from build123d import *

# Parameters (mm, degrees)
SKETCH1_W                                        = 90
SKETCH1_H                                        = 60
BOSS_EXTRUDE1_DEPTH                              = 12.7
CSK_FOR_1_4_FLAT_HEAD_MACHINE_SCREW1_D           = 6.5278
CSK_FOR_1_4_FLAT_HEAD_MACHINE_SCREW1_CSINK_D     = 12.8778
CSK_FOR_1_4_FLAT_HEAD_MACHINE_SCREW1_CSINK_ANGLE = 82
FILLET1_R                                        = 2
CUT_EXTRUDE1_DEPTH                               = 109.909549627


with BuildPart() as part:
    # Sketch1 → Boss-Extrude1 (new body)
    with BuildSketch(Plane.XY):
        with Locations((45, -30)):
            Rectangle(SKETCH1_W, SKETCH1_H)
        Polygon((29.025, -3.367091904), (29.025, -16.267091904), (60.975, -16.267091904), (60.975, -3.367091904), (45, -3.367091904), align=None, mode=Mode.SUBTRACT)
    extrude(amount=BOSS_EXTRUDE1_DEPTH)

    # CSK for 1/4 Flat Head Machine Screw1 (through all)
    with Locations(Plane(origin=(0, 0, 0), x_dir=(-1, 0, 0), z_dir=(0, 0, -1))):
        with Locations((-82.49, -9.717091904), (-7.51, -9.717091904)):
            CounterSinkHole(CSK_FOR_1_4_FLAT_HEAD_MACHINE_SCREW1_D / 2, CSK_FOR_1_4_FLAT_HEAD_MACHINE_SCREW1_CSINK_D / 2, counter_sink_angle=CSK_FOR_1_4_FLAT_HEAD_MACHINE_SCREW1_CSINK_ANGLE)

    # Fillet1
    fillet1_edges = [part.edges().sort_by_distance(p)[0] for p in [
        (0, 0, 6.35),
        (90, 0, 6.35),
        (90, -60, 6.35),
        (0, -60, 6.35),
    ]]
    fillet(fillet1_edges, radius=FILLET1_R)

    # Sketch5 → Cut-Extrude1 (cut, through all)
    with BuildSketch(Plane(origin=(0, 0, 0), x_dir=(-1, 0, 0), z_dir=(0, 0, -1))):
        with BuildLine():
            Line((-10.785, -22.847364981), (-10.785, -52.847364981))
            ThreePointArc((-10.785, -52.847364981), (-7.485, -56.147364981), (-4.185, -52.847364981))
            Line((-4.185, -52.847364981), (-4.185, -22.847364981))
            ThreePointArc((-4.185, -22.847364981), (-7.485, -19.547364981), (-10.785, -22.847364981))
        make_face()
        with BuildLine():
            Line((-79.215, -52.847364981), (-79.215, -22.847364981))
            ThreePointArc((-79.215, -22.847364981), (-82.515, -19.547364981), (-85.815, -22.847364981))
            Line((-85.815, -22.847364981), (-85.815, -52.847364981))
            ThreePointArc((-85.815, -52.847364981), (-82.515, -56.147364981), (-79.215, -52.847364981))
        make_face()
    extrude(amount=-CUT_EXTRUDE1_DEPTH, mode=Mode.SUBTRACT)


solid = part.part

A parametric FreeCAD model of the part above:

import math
import FreeCAD as App
import Part
import Sketcher

V = App.Vector


def edges_at(feature, points):
    """Names of the edges that pass closest to the given points."""
    edges = feature.Shape.Edges
    near = lambda p: min(range(len(edges)), key=lambda i: edges[i].distToShape(Part.Vertex(*p))[0])
    return sorted({f"Edge{near(p) + 1}" for p in points})


def add_polygon(sketch, points):
    """Adds a closed chain of lines whose ends are joined by coincident constraints."""
    first, n = sketch.GeometryCount, len(points)
    for a, b in zip(points, points[1:] + points[:1]):
        sketch.addGeometry(Part.LineSegment(App.Vector(*a, 0), App.Vector(*b, 0)), False)
    for i in range(n):
        sketch.addConstraint(Sketcher.Constraint("Coincident", first + i, 2, first + (i + 1) % n, 1))

doc = App.newDocument("Part")
body = doc.addObject("PartDesign::Body", "Body")

# Sketch on XY plane
sketch1 = body.newObject("Sketcher::SketchObject", "Sketch")
sketch1.AttachmentSupport = (doc.getObject("XY_Plane"), [""])
sketch1.MapMode = "FlatFace"
add_polygon(sketch1, [(0, 0), (0, -60), (90, -60), (90, 0)])  # lines 0-3
add_polygon(sketch1, [(29, -16), (29, -3), (61, -3), (61, -16)])  # lines 4-7
sketch1.addConstraint(Sketcher.Constraint("Vertical", 0))
sketch1.addConstraint(Sketcher.Constraint("Horizontal", 1))
sketch1.addConstraint(Sketcher.Constraint("Vertical", 2))
sketch1.addConstraint(Sketcher.Constraint("Horizontal", 3))
sketch1.addConstraint(Sketcher.Constraint("Vertical", 4))
sketch1.addConstraint(Sketcher.Constraint("Horizontal", 5))
sketch1.addConstraint(Sketcher.Constraint("Vertical", 6))
sketch1.addConstraint(Sketcher.Constraint("Horizontal", 7))
sketch1.addConstraint(Sketcher.Constraint("Coincident", 3, 2, -1, 1))
sketch1.addConstraint(Sketcher.Constraint("DistanceX", 1, 1, 1, 2, 90.0))
sketch1.addConstraint(Sketcher.Constraint("DistanceY", 0, 2, 0, 1, 60.0))
sketch1.addConstraint(Sketcher.Constraint("DistanceY", 4, 1, 4, 2, 12.9))
sketch1.addConstraint(Sketcher.Constraint("DistanceX", 5, 1, 5, 2, 31.95))
sketch1.addConstraint(Sketcher.Constraint("DistanceX", -1, 1, 4, 2, 29.025))
sketch1.addConstraint(Sketcher.Constraint("DistanceY", 4, 2, -1, 1, 3.367092))
pad1 = body.newObject("PartDesign::Pad", "Pad")
pad1.Profile = sketch1
pad1.Length = 12.7

# Sketch on XY plane
sketch2 = body.newObject("Sketcher::SketchObject", "Sketch001")
sketch2.AttachmentSupport = (doc.getObject("XY_Plane"), [""])
sketch2.MapMode = "FlatFace"
sketch2.addGeometry(Part.Circle(V(82.5, -9.7, 0), V(0, 0, 1), 3.3), False)
sketch2.addGeometry(Part.Circle(V(7.5, -9.7, 0), V(0, 0, 1), 3.3), False)
sketch2.addConstraint(Sketcher.Constraint("Equal", 0, 1))
sketch2.addConstraint(Sketcher.Constraint("Horizontal", 0, 3, 1, 3))
sketch2.addConstraint(Sketcher.Constraint("Diameter", 0, 6.5278))
sketch2.addConstraint(Sketcher.Constraint("DistanceX", -1, 1, 0, 3, 82.49))
sketch2.addConstraint(Sketcher.Constraint("DistanceX", -1, 1, 1, 3, 7.51))
sketch2.addConstraint(Sketcher.Constraint("DistanceY", 0, 3, -1, 1, 9.717092))
doc.recompute()
hole = body.newObject("PartDesign::Hole", "Hole")
hole.Profile = sketch2
hole.ThreadType = "None"
hole.Diameter = 6.5278
hole.DepthType = "ThroughAll"
hole.HoleCutType = "Countersink"
hole.HoleCutDiameter = 12.8778
hole.HoleCutCountersinkAngle = 82
hole.Reversed = True
doc.recompute()

fillet = body.newObject("PartDesign::Fillet", "Fillet")
fillet.Base = (hole, edges_at(hole, [
    (0, 0, 6.35),
    (90, 0, 6.35),
    (90, -60, 6.35),
    (0, -60, 6.35),
]))
fillet.Radius = 2

# Sketch on XY plane
sketch3 = body.newObject("Sketcher::SketchObject", "Sketch002")
sketch3.AttachmentSupport = (doc.getObject("XY_Plane"), [""])
sketch3.MapMode = "FlatFace"
sketch3.addGeometry(Part.LineSegment(V(10.8, -22.8, 0), V(10.8, -52.8, 0)), False)
sketch3.addGeometry(Part.ArcOfCircle(Part.Circle(V(7.5, -52.8, 0), V(0, 0, 1), 3.3), math.radians(180), math.radians(360)), False)
sketch3.addGeometry(Part.LineSegment(V(4.2, -52.8, 0), V(4.2, -22.8, 0)), False)
sketch3.addGeometry(Part.ArcOfCircle(Part.Circle(V(7.5, -22.8, 0), V(0, 0, 1), 3.3), math.radians(0), math.radians(180)), False)
sketch3.addGeometry(Part.LineSegment(V(79.2, -52.8, 0), V(79.2, -22.8, 0)), False)
sketch3.addGeometry(Part.ArcOfCircle(Part.Circle(V(82.5, -22.8, 0), V(0, 0, 1), 3.3), math.radians(0), math.radians(180)), False)
sketch3.addGeometry(Part.LineSegment(V(85.8, -22.8, 0), V(85.8, -52.8, 0)), False)
sketch3.addGeometry(Part.ArcOfCircle(Part.Circle(V(82.5, -52.8, 0), V(0, 0, 1), 3.3), math.radians(180), math.radians(360)), False)
sketch3.addConstraint(Sketcher.Constraint("Tangent", 0, 2, 1, 2))
sketch3.addConstraint(Sketcher.Constraint("Tangent", 1, 1, 2, 1))
sketch3.addConstraint(Sketcher.Constraint("Tangent", 2, 2, 3, 2))
sketch3.addConstraint(Sketcher.Constraint("Tangent", 3, 1, 0, 1))
sketch3.addConstraint(Sketcher.Constraint("Tangent", 4, 2, 5, 2))
sketch3.addConstraint(Sketcher.Constraint("Tangent", 5, 1, 6, 1))
sketch3.addConstraint(Sketcher.Constraint("Tangent", 6, 2, 7, 2))
sketch3.addConstraint(Sketcher.Constraint("Tangent", 7, 1, 4, 1))
sketch3.addConstraint(Sketcher.Constraint("Vertical", 0))
sketch3.addConstraint(Sketcher.Constraint("Vertical", 2))
sketch3.addConstraint(Sketcher.Constraint("Vertical", 4))
sketch3.addConstraint(Sketcher.Constraint("Vertical", 6))
sketch3.addConstraint(Sketcher.Constraint("Equal", 3, 5))
sketch3.addConstraint(Sketcher.Constraint("Horizontal", 3, 3, 5, 3))
sketch3.addConstraint(Sketcher.Constraint("Horizontal", 1, 3, 7, 3))
sketch3.addConstraint(Sketcher.Constraint("Radius", 1, 3.3))
sketch3.addConstraint(Sketcher.Constraint("DistanceY", 0, 2, 0, 1, 30.0))
sketch3.addConstraint(Sketcher.Constraint("DistanceX", 3, 3, 5, 3, 75.03))
sketch3.addConstraint(Sketcher.Constraint("DistanceX", -1, 1, 1, 3, 7.485))
sketch3.addConstraint(Sketcher.Constraint("DistanceY", 1, 3, -1, 1, 52.847365))
pocket1 = body.newObject("PartDesign::Pocket", "Pocket")
pocket1.Profile = sketch3
pocket1.Type = "ThroughAll"
pocket1.Reversed = True

doc.recompute()
